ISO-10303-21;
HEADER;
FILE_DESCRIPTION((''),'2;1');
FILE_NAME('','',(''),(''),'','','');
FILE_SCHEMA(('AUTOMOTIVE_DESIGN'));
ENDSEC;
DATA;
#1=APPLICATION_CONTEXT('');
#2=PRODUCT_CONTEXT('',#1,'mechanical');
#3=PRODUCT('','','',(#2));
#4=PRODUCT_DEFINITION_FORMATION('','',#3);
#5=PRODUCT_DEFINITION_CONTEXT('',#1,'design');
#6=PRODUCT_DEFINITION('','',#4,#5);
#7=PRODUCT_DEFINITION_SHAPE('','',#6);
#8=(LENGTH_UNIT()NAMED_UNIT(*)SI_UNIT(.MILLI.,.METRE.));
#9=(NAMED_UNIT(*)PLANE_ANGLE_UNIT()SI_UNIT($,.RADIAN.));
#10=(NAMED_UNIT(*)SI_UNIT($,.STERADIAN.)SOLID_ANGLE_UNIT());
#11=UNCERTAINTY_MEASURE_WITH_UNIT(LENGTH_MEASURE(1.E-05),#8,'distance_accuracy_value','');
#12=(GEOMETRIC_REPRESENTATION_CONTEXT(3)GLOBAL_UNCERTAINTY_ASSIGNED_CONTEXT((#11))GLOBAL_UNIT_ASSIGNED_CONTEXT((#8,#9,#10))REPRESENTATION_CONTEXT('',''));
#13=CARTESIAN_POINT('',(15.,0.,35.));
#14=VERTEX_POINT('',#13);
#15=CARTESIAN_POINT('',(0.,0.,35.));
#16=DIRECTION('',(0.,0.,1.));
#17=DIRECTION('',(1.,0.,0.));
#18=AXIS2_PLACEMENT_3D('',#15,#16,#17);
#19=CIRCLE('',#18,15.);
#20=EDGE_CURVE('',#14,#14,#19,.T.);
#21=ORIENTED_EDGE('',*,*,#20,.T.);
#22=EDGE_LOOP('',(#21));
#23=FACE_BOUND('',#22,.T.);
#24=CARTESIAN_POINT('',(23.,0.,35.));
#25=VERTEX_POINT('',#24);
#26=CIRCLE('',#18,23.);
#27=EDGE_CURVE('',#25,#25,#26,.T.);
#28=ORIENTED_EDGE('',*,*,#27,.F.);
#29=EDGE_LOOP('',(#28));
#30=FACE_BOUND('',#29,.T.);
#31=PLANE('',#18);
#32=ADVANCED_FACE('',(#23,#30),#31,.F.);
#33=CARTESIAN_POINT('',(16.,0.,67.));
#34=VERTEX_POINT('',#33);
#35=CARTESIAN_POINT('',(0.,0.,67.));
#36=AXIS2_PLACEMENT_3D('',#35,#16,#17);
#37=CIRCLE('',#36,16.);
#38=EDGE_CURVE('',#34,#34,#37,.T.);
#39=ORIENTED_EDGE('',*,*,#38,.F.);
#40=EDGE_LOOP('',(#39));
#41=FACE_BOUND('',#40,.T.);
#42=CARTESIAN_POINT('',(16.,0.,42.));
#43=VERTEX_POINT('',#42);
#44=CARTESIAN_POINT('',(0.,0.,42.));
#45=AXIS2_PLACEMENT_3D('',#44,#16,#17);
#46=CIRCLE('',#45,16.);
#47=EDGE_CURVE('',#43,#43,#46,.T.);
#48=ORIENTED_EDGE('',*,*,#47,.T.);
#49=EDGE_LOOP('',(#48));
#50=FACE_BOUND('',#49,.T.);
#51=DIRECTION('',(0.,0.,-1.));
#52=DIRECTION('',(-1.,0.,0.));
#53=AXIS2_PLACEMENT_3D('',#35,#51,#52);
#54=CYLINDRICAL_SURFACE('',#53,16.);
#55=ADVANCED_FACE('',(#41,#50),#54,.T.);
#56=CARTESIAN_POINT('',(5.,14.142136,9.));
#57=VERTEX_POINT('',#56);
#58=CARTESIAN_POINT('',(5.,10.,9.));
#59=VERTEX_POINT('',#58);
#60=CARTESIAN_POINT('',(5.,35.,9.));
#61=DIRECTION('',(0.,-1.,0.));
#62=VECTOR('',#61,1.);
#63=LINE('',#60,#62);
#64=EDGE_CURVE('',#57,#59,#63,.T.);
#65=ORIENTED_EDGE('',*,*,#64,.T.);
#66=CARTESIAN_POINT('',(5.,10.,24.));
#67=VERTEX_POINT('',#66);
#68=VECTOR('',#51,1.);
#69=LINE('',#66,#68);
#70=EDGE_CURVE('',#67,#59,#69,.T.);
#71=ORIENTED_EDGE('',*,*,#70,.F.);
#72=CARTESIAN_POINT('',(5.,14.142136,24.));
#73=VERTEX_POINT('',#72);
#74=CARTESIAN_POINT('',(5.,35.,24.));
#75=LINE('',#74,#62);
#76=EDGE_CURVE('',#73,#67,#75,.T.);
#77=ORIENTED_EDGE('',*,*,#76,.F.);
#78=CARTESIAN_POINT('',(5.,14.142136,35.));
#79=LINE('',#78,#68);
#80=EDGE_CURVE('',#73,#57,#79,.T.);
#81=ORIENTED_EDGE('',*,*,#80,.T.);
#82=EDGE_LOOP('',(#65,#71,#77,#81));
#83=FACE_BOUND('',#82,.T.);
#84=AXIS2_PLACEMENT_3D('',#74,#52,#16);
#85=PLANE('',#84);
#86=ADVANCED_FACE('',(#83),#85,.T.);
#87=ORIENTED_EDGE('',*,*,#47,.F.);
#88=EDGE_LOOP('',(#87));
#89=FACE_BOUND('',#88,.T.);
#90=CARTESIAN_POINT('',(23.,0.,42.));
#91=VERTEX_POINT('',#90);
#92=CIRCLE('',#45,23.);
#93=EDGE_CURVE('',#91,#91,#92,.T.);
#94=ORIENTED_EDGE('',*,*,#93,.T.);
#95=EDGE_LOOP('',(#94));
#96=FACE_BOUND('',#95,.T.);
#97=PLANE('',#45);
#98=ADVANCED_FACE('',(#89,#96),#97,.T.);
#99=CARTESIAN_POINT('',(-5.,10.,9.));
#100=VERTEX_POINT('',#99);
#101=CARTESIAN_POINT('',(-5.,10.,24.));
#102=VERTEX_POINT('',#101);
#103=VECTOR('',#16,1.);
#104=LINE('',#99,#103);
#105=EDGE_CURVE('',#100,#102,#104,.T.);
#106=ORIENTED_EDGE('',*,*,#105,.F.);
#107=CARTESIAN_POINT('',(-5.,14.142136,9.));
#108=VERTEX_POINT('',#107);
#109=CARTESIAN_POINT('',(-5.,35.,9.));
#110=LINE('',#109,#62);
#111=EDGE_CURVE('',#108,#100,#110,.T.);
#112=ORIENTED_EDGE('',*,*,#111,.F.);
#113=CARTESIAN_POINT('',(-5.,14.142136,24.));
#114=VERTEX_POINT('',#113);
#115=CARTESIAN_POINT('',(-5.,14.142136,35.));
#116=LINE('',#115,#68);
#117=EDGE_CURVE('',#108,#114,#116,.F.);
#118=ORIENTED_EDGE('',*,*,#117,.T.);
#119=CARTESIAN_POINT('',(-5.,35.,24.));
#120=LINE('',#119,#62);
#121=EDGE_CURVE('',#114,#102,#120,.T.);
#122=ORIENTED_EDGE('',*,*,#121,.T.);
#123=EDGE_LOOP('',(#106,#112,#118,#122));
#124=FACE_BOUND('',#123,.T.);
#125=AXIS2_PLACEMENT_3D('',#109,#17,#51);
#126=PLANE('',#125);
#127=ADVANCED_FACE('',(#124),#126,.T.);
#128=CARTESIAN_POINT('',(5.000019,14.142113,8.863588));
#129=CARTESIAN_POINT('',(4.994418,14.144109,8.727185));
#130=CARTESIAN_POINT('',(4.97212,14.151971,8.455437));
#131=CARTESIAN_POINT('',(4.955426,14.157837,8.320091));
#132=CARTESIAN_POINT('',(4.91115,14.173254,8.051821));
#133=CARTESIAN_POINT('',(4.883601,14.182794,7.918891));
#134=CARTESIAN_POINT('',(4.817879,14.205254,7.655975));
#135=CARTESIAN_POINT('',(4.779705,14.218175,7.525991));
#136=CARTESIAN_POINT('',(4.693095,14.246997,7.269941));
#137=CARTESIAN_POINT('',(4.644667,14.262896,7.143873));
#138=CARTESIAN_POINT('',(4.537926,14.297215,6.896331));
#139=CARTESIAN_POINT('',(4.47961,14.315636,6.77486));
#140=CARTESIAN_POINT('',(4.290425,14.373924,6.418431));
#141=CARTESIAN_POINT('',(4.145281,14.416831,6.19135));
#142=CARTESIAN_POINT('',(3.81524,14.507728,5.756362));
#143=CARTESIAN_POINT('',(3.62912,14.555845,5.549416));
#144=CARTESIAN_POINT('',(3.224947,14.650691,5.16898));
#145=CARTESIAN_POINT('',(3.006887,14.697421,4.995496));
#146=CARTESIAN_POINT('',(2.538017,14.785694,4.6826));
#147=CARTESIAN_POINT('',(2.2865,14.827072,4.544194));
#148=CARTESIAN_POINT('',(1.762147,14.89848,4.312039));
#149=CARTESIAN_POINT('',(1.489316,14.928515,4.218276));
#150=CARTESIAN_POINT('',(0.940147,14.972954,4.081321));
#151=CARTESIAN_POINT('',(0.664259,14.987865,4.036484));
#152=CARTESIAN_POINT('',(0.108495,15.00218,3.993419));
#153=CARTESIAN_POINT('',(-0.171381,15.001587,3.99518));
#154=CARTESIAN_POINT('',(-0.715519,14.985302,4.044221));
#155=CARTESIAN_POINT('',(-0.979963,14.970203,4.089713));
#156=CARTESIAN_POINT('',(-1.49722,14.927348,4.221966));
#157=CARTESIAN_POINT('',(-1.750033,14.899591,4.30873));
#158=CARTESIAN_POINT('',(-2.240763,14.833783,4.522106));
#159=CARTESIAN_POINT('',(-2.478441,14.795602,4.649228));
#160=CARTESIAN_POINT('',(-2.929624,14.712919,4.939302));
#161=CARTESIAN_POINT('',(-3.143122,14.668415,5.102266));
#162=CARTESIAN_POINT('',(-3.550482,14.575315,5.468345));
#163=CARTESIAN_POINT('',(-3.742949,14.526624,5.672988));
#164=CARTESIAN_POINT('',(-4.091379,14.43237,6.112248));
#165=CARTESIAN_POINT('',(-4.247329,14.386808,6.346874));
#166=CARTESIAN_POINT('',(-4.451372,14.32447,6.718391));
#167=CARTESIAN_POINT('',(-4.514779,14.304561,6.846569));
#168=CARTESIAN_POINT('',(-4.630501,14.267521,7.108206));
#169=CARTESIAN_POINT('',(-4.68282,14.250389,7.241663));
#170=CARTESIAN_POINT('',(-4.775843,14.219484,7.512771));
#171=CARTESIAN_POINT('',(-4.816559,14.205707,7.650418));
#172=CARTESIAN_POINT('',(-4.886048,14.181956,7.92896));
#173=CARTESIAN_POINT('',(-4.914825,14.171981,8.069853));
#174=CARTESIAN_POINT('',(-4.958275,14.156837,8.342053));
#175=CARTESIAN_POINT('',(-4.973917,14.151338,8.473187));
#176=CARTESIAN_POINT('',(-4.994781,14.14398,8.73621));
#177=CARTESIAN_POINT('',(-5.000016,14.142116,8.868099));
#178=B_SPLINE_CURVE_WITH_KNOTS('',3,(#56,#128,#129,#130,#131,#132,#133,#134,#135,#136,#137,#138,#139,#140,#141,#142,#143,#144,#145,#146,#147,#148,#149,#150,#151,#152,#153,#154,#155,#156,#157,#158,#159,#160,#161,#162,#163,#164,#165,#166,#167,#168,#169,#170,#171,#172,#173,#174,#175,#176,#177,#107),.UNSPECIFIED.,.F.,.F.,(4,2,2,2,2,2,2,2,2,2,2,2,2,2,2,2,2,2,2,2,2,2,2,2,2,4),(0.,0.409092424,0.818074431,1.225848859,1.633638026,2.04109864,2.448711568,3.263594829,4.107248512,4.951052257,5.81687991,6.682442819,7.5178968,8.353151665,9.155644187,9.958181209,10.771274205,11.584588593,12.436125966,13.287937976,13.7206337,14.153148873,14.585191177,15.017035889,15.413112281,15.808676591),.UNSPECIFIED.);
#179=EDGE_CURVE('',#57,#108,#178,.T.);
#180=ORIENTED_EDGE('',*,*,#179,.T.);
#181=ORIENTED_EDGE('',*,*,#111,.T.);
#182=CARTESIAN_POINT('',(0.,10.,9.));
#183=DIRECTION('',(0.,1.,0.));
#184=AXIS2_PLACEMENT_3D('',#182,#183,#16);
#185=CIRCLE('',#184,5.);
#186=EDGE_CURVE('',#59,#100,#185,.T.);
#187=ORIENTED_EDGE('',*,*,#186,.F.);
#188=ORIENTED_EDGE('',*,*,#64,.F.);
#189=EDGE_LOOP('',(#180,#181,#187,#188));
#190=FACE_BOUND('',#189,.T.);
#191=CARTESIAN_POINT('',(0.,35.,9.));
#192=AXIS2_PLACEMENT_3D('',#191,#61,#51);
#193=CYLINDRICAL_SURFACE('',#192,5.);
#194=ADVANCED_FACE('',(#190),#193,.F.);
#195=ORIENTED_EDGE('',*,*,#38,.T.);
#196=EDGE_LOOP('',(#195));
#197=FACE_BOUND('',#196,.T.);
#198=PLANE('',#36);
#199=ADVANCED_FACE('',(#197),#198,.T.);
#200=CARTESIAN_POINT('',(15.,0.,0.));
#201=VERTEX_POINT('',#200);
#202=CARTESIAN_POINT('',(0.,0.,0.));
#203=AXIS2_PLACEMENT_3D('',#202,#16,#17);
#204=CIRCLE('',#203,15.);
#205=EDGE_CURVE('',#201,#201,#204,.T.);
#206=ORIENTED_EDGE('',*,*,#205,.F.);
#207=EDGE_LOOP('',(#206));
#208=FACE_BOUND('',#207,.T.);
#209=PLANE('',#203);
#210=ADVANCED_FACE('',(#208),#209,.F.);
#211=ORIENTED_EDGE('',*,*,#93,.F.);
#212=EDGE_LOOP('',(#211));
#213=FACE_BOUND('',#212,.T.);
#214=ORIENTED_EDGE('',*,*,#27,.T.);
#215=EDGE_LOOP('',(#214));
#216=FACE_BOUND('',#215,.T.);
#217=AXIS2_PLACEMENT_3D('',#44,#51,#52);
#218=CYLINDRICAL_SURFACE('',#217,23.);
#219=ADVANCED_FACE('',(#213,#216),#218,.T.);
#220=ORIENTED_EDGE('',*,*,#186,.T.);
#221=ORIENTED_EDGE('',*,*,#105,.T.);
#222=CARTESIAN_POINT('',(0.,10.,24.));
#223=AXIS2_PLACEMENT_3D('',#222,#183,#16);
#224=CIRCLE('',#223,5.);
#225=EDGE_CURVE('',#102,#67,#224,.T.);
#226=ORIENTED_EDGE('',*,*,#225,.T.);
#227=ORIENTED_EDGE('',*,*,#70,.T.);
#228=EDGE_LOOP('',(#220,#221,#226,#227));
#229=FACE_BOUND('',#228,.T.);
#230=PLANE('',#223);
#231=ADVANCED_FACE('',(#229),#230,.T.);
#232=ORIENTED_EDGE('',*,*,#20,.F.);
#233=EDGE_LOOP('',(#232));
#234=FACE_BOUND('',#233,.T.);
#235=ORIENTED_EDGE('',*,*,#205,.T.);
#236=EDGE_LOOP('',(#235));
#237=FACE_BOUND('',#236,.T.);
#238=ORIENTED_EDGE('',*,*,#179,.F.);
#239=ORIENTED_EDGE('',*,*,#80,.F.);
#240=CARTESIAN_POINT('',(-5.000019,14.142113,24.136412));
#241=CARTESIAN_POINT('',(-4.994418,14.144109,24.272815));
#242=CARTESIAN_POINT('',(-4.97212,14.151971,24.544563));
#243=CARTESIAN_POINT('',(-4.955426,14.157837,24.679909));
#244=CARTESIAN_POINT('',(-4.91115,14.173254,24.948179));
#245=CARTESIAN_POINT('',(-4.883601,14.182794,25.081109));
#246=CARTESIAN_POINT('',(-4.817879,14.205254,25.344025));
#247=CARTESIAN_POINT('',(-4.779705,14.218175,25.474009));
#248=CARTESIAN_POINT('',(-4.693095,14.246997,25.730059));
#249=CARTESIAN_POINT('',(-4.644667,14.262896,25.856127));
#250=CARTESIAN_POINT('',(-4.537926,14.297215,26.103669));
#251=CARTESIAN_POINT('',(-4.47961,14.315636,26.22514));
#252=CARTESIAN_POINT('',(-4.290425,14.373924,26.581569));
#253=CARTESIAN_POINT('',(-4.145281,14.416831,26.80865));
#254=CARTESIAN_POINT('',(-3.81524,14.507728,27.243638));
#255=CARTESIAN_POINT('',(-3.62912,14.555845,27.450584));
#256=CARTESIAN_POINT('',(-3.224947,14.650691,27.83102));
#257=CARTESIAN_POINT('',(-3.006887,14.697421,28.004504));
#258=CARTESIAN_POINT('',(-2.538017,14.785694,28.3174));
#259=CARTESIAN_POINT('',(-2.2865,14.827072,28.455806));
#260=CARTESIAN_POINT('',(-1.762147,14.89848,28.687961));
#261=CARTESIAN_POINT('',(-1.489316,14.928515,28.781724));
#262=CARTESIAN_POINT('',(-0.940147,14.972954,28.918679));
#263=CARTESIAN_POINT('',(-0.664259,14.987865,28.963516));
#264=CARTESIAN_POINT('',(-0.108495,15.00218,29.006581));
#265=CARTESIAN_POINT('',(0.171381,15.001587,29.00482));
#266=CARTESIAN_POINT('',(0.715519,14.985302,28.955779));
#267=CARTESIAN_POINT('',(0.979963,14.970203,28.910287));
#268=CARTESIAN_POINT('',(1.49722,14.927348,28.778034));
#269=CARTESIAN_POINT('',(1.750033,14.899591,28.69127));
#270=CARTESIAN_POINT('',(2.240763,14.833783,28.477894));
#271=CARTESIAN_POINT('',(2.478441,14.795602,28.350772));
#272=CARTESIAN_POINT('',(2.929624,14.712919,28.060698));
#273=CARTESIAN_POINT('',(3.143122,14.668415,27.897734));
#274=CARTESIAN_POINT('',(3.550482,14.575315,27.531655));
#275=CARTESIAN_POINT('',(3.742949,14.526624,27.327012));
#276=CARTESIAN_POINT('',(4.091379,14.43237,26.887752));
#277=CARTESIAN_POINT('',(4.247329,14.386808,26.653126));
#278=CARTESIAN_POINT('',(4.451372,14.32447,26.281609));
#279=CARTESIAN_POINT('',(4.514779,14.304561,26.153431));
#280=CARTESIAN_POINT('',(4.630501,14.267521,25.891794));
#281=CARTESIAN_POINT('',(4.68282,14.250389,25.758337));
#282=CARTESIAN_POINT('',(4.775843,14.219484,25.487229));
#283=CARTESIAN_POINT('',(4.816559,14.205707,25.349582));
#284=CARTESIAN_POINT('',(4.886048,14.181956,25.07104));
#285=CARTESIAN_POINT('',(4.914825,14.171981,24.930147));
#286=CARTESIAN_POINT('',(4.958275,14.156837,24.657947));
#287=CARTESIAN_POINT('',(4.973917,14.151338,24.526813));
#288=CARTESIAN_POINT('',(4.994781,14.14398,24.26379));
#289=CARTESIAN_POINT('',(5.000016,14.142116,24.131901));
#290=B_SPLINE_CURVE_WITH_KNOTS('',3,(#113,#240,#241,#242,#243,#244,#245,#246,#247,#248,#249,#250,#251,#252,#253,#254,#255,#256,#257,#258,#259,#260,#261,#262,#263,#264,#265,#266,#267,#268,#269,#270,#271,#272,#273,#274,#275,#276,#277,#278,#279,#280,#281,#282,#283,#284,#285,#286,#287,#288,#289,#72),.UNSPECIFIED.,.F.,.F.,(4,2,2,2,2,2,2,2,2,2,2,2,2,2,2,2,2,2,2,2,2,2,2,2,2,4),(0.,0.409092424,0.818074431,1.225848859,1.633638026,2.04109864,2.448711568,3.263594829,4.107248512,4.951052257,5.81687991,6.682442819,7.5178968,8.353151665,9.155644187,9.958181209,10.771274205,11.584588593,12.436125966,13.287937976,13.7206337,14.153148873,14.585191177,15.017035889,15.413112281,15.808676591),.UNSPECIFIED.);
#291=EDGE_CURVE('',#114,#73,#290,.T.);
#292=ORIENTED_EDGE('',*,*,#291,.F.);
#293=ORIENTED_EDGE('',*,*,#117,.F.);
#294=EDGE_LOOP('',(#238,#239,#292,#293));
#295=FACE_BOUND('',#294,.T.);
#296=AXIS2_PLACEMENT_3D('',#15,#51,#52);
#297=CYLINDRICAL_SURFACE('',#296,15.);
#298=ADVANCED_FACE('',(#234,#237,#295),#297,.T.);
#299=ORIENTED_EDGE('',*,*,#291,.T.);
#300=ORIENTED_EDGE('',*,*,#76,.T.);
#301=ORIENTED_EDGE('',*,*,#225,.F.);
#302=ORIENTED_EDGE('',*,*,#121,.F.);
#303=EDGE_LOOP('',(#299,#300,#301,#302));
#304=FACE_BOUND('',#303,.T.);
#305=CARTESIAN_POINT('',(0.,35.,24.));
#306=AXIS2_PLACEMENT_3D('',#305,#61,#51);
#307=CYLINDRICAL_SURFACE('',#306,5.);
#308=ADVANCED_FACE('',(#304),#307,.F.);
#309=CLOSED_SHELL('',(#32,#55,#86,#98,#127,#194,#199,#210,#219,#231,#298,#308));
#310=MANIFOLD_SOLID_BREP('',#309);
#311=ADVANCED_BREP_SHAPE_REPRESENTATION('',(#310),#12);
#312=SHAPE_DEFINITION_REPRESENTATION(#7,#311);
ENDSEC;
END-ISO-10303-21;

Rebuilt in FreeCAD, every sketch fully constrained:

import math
import FreeCAD as App
import Part
import Sketcher

doc = App.newDocument("Part")
body = doc.addObject("PartDesign::Body", "Body")

sketch1 = body.newObject("Sketcher::SketchObject", "Sketch")
sketch1.AttachmentSupport = (doc.getObject("XY_Plane"), [""])
sketch1.MapMode = "FlatFace"
sketch1.addGeometry(Part.Circle(App.Vector(0, 0, 0), App.Vector(0, 0, 1), 15), False)
sketch1.addConstraint([
    Sketcher.Constraint("Coincident", 0, 3, -1, 1),
    Sketcher.Constraint("Diameter", 0, 30.0),
])
pad1 = body.newObject("PartDesign::Pad", "Pad")
pad1.Profile = sketch1
pad1.Length = 35

sketch2 = body.newObject("Sketcher::SketchObject", "Sketch001")
sketch2.AttachmentSupport = (doc.getObject("XY_Plane"), [""])
sketch2.MapMode = "FlatFace"
sketch2.AttachmentOffset = App.Placement(App.Vector(0, 0, 35), App.Rotation())
sketch2.addGeometry(Part.Circle(App.Vector(0, 0, 0), App.Vector(0, 0, 1), 23), False)
sketch2.addConstraint([
    Sketcher.Constraint("Coincident", 0, 3, -1, 1),
    Sketcher.Constraint("Diameter", 0, 46.0),
])
pad2 = body.newObject("PartDesign::Pad", "Pad001")
pad2.Profile = sketch2
pad2.Length = 7

sketch3 = body.newObject("Sketcher::SketchObject", "Sketch002")
sketch3.AttachmentSupport = (doc.getObject("XY_Plane"), [""])
sketch3.MapMode = "FlatFace"
sketch3.AttachmentOffset = App.Placement(App.Vector(0, 0, 42), App.Rotation())
sketch3.addGeometry(Part.Circle(App.Vector(0, 0, 0), App.Vector(0, 0, 1), 16), False)
sketch3.addConstraint([
    Sketcher.Constraint("Coincident", 0, 3, -1, 1),
    Sketcher.Constraint("Diameter", 0, 32.0),
])
pad3 = body.newObject("PartDesign::Pad", "Pad002")
pad3.Profile = sketch3
pad3.Length = 25

sketch4 = body.newObject("Sketcher::SketchObject", "Sketch003")
sketch4.AttachmentSupport = (doc.getObject("XZ_Plane"), [""])
sketch4.MapMode = "FlatFace"
sketch4.AttachmentOffset = App.Placement(App.Vector(0, 0, -10), App.Rotation())
sketch4.addGeometry([
    Part.LineSegment(App.Vector(5, 24, 0), App.Vector(5, 9, 0)),
    Part.ArcOfCircle(Part.Circle(App.Vector(0, 9, 0), App.Vector(0, 0, 1), 5), math.radians(180), math.radians(360)),
    Part.LineSegment(App.Vector(-5, 9, 0), App.Vector(-5, 24, 0)),
    Part.ArcOfCircle(Part.Circle(App.Vector(0, 24, 0), App.Vector(0, 0, 1), 5), math.radians(0), math.radians(180)),
], False)
sketch4.addConstraint([
    Sketcher.Constraint("Tangent", 0, 2, 1, 2),
    Sketcher.Constraint("Tangent", 1, 1, 2, 1),
    Sketcher.Constraint("Tangent", 2, 2, 3, 2),
    Sketcher.Constraint("Tangent", 3, 1, 0, 1),
    Sketcher.Constraint("Vertical", 0),
    Sketcher.Constraint("Vertical", 2),
    Sketcher.Constraint("PointOnObject", 1, 3, -2),
    Sketcher.Constraint("Radius", 1, 5.0),
    Sketcher.Constraint("DistanceY", 0, 2, 0, 1, 15.0),
    Sketcher.Constraint("DistanceY", -1, 1, 1, 3, 9.0),
])
pocket1 = body.newObject("PartDesign::Pocket", "Pocket")
pocket1.Profile = sketch4
pocket1.Length = 25

doc.recompute()
